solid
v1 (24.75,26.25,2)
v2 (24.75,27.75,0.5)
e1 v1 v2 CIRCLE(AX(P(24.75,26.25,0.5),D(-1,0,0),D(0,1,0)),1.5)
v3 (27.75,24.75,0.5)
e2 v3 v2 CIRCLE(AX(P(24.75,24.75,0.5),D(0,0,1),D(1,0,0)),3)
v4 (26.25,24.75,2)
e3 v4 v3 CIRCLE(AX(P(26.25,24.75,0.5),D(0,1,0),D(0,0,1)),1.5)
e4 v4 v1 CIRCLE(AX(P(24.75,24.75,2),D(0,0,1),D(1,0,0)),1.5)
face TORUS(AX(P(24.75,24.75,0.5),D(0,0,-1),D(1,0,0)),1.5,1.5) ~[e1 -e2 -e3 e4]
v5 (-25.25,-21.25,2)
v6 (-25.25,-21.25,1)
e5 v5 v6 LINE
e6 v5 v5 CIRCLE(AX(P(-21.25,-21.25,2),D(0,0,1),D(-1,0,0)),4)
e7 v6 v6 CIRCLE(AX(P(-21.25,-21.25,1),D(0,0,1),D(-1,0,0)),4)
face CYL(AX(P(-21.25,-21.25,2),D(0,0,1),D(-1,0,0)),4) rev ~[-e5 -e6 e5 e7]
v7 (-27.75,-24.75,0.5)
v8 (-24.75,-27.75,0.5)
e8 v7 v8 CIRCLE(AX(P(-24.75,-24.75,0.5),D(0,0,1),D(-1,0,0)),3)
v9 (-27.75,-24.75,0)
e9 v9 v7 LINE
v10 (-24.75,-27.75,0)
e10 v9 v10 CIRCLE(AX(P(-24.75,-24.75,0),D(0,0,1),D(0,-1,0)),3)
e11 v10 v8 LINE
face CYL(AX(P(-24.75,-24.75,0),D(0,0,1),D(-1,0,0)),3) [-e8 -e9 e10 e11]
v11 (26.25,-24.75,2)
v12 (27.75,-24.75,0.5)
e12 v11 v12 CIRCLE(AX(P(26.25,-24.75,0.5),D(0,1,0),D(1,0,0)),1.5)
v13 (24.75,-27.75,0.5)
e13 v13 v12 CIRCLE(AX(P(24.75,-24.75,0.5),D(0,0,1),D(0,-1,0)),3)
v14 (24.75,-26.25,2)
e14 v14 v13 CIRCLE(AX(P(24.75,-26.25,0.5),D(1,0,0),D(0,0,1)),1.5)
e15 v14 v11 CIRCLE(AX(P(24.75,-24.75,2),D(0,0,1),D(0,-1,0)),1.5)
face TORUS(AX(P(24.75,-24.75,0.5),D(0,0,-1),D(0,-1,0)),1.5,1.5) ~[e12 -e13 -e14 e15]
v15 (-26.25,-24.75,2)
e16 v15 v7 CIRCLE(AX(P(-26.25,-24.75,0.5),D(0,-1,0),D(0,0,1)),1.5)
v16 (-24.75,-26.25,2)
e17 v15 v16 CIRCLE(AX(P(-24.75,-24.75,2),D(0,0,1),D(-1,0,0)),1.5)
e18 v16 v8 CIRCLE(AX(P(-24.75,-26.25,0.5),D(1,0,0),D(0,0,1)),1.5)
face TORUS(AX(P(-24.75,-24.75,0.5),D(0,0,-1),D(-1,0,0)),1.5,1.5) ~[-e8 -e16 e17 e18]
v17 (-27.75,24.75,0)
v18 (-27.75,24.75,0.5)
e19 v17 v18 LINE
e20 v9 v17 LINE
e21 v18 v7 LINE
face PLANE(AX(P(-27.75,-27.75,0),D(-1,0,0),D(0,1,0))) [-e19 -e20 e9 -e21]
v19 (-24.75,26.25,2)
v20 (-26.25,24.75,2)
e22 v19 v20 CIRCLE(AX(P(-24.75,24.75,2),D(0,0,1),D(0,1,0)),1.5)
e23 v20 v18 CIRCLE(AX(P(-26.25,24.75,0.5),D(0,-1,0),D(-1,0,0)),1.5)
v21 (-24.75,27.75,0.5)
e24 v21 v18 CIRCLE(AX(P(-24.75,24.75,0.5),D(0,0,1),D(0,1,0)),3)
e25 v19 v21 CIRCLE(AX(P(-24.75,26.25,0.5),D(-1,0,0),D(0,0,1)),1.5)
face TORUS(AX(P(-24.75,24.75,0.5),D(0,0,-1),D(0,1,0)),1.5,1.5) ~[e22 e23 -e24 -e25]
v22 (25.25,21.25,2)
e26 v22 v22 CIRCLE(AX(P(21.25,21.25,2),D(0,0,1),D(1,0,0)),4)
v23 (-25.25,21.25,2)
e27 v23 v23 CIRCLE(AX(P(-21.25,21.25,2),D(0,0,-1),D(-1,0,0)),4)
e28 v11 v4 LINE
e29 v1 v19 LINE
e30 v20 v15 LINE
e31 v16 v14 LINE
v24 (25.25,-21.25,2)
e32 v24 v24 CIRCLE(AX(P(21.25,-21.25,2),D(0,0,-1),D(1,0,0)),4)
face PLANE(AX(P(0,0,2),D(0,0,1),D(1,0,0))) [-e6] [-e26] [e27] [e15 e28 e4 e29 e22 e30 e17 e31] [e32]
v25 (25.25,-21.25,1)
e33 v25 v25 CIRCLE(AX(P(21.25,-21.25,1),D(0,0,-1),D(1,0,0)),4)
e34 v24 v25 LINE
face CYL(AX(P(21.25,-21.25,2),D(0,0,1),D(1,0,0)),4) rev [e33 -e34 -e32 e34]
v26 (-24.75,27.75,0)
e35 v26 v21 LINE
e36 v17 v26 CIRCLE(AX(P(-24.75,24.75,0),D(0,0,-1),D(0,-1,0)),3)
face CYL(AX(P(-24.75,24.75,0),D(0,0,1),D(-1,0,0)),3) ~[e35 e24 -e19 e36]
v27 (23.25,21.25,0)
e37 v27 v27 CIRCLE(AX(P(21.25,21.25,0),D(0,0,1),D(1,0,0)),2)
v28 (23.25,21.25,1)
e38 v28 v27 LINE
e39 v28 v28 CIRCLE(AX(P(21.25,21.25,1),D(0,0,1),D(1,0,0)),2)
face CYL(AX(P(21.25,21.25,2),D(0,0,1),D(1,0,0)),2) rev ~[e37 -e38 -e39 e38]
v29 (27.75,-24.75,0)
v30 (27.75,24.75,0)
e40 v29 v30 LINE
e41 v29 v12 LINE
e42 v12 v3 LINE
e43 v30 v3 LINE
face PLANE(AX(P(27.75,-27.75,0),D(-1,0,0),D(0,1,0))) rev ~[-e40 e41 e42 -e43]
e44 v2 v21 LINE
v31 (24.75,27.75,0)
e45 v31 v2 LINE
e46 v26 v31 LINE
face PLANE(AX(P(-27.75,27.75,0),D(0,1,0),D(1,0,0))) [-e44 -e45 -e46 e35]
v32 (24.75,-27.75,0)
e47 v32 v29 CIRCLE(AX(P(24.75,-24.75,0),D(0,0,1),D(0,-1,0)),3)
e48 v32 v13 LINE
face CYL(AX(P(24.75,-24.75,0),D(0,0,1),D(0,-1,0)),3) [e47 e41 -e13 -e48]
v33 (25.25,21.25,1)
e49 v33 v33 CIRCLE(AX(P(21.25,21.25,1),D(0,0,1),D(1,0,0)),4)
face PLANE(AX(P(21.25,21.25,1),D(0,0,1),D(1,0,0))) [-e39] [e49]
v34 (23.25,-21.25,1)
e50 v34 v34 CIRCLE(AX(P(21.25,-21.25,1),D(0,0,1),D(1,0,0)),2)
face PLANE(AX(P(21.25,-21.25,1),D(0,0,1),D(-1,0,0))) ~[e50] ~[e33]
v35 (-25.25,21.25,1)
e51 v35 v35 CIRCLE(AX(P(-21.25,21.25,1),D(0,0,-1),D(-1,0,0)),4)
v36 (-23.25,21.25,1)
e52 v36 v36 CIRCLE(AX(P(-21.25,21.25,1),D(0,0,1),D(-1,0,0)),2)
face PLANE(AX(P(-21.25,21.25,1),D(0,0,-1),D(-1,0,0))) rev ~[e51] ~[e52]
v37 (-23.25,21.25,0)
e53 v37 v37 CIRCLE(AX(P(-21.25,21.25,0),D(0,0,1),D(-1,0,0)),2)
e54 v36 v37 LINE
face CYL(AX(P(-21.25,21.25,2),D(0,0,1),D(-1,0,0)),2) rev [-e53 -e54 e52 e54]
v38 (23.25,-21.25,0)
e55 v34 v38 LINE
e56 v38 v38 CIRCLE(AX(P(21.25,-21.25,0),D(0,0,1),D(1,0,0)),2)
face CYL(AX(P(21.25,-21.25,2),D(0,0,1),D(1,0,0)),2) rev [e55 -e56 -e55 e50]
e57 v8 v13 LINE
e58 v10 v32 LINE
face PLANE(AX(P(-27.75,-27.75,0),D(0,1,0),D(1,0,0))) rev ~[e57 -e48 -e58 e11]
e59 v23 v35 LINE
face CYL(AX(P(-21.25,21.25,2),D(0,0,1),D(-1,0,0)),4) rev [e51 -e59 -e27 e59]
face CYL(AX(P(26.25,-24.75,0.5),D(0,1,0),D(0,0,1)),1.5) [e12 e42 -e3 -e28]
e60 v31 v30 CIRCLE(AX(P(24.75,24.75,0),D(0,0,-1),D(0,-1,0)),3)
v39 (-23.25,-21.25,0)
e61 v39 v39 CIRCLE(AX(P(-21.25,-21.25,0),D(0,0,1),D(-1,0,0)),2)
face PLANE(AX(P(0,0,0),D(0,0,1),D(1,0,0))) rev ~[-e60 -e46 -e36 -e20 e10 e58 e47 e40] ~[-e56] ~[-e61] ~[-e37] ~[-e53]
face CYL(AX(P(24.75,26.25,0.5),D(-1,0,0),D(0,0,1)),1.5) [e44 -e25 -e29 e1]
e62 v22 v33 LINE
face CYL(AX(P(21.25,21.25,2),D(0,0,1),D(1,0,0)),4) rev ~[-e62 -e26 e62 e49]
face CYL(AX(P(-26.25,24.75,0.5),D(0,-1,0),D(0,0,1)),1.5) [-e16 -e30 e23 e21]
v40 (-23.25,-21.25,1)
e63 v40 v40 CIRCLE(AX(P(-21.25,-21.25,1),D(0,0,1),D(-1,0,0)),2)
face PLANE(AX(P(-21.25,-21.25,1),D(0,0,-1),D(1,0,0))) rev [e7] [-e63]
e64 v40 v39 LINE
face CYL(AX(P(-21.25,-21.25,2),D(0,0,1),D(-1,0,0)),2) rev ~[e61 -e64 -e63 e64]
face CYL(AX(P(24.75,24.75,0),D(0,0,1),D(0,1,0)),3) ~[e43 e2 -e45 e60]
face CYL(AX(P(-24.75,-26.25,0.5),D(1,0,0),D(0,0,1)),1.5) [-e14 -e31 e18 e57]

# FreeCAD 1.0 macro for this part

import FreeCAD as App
import Part
import Sketcher
from FreeCAD import Vector
Q = App.Units.Quantity


def edges_at(feature, points):
    """Names of the edges that pass closest to the given points."""
    edges = feature.Shape.Edges
    near = lambda p: min(range(len(edges)), key=lambda i: edges[i].distToShape(Part.Vertex(*p))[0])
    return sorted({f"Edge{near(p) + 1}" for p in points})

doc = App.newDocument("Part")
body = doc.addObject("PartDesign::Body", "Body")

# Sketch on XY plane
sketch1 = body.newObject("Sketcher::SketchObject", "Sketch")
sketch1.AttachmentSupport = (doc.getObject("XY_Plane"), [""])
sketch1.MapMode = "FlatFace"
sketch1.addGeometry(Part.LineSegment(Vector(-28, 28, 0), Vector(-28, -28, 0)), False)
sketch1.addGeometry(Part.LineSegment(Vector(-28, -28, 0), Vector(28, -28, 0)), False)
sketch1.addGeometry(Part.LineSegment(Vector(28, -28, 0), Vector(28, 28, 0)), False)
sketch1.addGeometry(Part.LineSegment(Vector(28, 28, 0), Vector(-28, 28, 0)), False)
sketch1.addConstraint(Sketcher.Constraint("Coincident", 0, 2, 1, 1))
sketch1.addConstraint(Sketcher.Constraint("Coincident", 1, 2, 2, 1))
sketch1.addConstraint(Sketcher.Constraint("Coincident", 2, 2, 3, 1))
sketch1.addConstraint(Sketcher.Constraint("Coincident", 3, 2, 0, 1))
sketch1.addConstraint(Sketcher.Constraint("Vertical", 0))
sketch1.addConstraint(Sketcher.Constraint("Horizontal", 1))
sketch1.addConstraint(Sketcher.Constraint("Vertical", 2))
sketch1.addConstraint(Sketcher.Constraint("Horizontal", 3))
sketch1.addConstraint(Sketcher.Constraint("Symmetric", 0, 2, 2, 2, -1, 1))
sketch1.addConstraint(Sketcher.Constraint("Equal", 3, 0))
sketch1.addConstraint(Sketcher.Constraint("DistanceX", 1, 1, 1, 2, Q("55.5 mm")))
pad1 = body.newObject("PartDesign::Pad", "Pad")
pad1.Profile = sketch1
pad1.Length = 2

# Sketch on XY plane
sketch2 = body.newObject("Sketcher::SketchObject", "Sketch001")
sketch2.AttachmentSupport = (doc.getObject("XY_Plane"), [""])
sketch2.MapMode = "FlatFace"
sketch2.AttachmentOffset = App.Placement(Vector(0, 0, 2), App.Rotation())
sketch2.addGeometry(Part.Circle(Vector(21.2, 21.2, 0), Vector(0, 0, 1), 2), False)
sketch2.addConstraint(Sketcher.Constraint("Diameter", 0, Q("4 mm")))
sketch2.addConstraint(Sketcher.Constraint("DistanceX", -1, 1, 0, 3, Q("21.25 mm")))
sketch2.addConstraint(Sketcher.Constraint("DistanceY", -1, 1, 0, 3, Q("21.25 mm")))
pocket1 = body.newObject("PartDesign::Pocket", "Pocket")
pocket1.Profile = sketch2
pocket1.Type = "ThroughAll"

# Sketch on XY plane
sketch3 = body.newObject("Sketcher::SketchObject", "Sketch002")
sketch3.AttachmentSupport = (doc.getObject("XY_Plane"), [""])
sketch3.MapMode = "FlatFace"
sketch3.AttachmentOffset = App.Placement(Vector(0, 0, 2), App.Rotation())
sketch3.addGeometry(Part.Circle(Vector(21.2, 21.2, 0), Vector(0, 0, 1), 4), False)
sketch3.addConstraint(Sketcher.Constraint("Diameter", 0, Q("8 mm")))
sketch3.addConstraint(Sketcher.Constraint("DistanceX", -1, 1, 0, 3, Q("21.25 mm")))
sketch3.addConstraint(Sketcher.Constraint("DistanceY", -1, 1, 0, 3, Q("21.25 mm")))
pocket2 = body.newObject("PartDesign::Pocket", "Pocket001")
pocket2.Profile = sketch3
pocket2.Length = 1

# Sketch on XY plane
sketch4 = body.newObject("Sketcher::SketchObject", "Sketch003")
sketch4.AttachmentSupport = (doc.getObject("XY_Plane"), [""])
sketch4.MapMode = "FlatFace"
sketch4.AttachmentOffset = App.Placement(Vector(0, 0, 2), App.Rotation())
sketch4.addGeometry(Part.Circle(Vector(-21.2, 21.2, 0), Vector(0, 0, 1), 2), False)
sketch4.addConstraint(Sketcher.Constraint("Diameter", 0, Q("4 mm")))
sketch4.addConstraint(Sketcher.Constraint("DistanceX", 0, 3, -1, 1, Q("21.25 mm")))
sketch4.addConstraint(Sketcher.Constraint("DistanceY", -1, 1, 0, 3, Q("21.25 mm")))
pocket3 = body.newObject("PartDesign::Pocket", "Pocket002")
pocket3.Profile = sketch4
pocket3.Type = "ThroughAll"

# Sketch on XY plane
sketch5 = body.newObject("Sketcher::SketchObject", "Sketch004")
sketch5.AttachmentSupport = (doc.getObject("XY_Plane"), [""])
sketch5.MapMode = "FlatFace"
sketch5.AttachmentOffset = App.Placement(Vector(0, 0, 2), App.Rotation())
sketch5.addGeometry(Part.Circle(Vector(-21.2, 21.2, 0), Vector(0, 0, 1), 4), False)
sketch5.addConstraint(Sketcher.Constraint("Diameter", 0, Q("8 mm")))
sketch5.addConstraint(Sketcher.Constraint("DistanceX", 0, 3, -1, 1, Q("21.25 mm")))
sketch5.addConstraint(Sketcher.Constraint("DistanceY", -1, 1, 0, 3, Q("21.25 mm")))
pocket4 = body.newObject("PartDesign::Pocket", "Pocket003")
pocket4.Profile = sketch5
pocket4.Length = 1
doc.recompute()

mirrored = body.newObject("PartDesign::Mirrored", "Mirrored")
mirrored.Originals = [pocket1, pocket2, pocket3, pocket4]
mirrored.MirrorPlane = (doc.getObject("XZ_Plane"), [""])
body.Tip = mirrored
doc.recompute()

fillet = body.newObject("PartDesign::Fillet", "Fillet")
fillet.Base = (mirrored, edges_at(mirrored, [
    (-27.75, -27.75, 1),
    (27.75, -27.75, 1),
    (27.75, 27.75, 1),
    (-27.75, 27.75, 1),
]))
fillet.Radius = 3
doc.recompute()

fillet2 = body.newObject("PartDesign::Fillet", "Fillet001")
fillet2.Base = (fillet, edges_at(fillet, [(0, -27.75, 2)]))
fillet2.Radius = 1.5

doc.recompute()
